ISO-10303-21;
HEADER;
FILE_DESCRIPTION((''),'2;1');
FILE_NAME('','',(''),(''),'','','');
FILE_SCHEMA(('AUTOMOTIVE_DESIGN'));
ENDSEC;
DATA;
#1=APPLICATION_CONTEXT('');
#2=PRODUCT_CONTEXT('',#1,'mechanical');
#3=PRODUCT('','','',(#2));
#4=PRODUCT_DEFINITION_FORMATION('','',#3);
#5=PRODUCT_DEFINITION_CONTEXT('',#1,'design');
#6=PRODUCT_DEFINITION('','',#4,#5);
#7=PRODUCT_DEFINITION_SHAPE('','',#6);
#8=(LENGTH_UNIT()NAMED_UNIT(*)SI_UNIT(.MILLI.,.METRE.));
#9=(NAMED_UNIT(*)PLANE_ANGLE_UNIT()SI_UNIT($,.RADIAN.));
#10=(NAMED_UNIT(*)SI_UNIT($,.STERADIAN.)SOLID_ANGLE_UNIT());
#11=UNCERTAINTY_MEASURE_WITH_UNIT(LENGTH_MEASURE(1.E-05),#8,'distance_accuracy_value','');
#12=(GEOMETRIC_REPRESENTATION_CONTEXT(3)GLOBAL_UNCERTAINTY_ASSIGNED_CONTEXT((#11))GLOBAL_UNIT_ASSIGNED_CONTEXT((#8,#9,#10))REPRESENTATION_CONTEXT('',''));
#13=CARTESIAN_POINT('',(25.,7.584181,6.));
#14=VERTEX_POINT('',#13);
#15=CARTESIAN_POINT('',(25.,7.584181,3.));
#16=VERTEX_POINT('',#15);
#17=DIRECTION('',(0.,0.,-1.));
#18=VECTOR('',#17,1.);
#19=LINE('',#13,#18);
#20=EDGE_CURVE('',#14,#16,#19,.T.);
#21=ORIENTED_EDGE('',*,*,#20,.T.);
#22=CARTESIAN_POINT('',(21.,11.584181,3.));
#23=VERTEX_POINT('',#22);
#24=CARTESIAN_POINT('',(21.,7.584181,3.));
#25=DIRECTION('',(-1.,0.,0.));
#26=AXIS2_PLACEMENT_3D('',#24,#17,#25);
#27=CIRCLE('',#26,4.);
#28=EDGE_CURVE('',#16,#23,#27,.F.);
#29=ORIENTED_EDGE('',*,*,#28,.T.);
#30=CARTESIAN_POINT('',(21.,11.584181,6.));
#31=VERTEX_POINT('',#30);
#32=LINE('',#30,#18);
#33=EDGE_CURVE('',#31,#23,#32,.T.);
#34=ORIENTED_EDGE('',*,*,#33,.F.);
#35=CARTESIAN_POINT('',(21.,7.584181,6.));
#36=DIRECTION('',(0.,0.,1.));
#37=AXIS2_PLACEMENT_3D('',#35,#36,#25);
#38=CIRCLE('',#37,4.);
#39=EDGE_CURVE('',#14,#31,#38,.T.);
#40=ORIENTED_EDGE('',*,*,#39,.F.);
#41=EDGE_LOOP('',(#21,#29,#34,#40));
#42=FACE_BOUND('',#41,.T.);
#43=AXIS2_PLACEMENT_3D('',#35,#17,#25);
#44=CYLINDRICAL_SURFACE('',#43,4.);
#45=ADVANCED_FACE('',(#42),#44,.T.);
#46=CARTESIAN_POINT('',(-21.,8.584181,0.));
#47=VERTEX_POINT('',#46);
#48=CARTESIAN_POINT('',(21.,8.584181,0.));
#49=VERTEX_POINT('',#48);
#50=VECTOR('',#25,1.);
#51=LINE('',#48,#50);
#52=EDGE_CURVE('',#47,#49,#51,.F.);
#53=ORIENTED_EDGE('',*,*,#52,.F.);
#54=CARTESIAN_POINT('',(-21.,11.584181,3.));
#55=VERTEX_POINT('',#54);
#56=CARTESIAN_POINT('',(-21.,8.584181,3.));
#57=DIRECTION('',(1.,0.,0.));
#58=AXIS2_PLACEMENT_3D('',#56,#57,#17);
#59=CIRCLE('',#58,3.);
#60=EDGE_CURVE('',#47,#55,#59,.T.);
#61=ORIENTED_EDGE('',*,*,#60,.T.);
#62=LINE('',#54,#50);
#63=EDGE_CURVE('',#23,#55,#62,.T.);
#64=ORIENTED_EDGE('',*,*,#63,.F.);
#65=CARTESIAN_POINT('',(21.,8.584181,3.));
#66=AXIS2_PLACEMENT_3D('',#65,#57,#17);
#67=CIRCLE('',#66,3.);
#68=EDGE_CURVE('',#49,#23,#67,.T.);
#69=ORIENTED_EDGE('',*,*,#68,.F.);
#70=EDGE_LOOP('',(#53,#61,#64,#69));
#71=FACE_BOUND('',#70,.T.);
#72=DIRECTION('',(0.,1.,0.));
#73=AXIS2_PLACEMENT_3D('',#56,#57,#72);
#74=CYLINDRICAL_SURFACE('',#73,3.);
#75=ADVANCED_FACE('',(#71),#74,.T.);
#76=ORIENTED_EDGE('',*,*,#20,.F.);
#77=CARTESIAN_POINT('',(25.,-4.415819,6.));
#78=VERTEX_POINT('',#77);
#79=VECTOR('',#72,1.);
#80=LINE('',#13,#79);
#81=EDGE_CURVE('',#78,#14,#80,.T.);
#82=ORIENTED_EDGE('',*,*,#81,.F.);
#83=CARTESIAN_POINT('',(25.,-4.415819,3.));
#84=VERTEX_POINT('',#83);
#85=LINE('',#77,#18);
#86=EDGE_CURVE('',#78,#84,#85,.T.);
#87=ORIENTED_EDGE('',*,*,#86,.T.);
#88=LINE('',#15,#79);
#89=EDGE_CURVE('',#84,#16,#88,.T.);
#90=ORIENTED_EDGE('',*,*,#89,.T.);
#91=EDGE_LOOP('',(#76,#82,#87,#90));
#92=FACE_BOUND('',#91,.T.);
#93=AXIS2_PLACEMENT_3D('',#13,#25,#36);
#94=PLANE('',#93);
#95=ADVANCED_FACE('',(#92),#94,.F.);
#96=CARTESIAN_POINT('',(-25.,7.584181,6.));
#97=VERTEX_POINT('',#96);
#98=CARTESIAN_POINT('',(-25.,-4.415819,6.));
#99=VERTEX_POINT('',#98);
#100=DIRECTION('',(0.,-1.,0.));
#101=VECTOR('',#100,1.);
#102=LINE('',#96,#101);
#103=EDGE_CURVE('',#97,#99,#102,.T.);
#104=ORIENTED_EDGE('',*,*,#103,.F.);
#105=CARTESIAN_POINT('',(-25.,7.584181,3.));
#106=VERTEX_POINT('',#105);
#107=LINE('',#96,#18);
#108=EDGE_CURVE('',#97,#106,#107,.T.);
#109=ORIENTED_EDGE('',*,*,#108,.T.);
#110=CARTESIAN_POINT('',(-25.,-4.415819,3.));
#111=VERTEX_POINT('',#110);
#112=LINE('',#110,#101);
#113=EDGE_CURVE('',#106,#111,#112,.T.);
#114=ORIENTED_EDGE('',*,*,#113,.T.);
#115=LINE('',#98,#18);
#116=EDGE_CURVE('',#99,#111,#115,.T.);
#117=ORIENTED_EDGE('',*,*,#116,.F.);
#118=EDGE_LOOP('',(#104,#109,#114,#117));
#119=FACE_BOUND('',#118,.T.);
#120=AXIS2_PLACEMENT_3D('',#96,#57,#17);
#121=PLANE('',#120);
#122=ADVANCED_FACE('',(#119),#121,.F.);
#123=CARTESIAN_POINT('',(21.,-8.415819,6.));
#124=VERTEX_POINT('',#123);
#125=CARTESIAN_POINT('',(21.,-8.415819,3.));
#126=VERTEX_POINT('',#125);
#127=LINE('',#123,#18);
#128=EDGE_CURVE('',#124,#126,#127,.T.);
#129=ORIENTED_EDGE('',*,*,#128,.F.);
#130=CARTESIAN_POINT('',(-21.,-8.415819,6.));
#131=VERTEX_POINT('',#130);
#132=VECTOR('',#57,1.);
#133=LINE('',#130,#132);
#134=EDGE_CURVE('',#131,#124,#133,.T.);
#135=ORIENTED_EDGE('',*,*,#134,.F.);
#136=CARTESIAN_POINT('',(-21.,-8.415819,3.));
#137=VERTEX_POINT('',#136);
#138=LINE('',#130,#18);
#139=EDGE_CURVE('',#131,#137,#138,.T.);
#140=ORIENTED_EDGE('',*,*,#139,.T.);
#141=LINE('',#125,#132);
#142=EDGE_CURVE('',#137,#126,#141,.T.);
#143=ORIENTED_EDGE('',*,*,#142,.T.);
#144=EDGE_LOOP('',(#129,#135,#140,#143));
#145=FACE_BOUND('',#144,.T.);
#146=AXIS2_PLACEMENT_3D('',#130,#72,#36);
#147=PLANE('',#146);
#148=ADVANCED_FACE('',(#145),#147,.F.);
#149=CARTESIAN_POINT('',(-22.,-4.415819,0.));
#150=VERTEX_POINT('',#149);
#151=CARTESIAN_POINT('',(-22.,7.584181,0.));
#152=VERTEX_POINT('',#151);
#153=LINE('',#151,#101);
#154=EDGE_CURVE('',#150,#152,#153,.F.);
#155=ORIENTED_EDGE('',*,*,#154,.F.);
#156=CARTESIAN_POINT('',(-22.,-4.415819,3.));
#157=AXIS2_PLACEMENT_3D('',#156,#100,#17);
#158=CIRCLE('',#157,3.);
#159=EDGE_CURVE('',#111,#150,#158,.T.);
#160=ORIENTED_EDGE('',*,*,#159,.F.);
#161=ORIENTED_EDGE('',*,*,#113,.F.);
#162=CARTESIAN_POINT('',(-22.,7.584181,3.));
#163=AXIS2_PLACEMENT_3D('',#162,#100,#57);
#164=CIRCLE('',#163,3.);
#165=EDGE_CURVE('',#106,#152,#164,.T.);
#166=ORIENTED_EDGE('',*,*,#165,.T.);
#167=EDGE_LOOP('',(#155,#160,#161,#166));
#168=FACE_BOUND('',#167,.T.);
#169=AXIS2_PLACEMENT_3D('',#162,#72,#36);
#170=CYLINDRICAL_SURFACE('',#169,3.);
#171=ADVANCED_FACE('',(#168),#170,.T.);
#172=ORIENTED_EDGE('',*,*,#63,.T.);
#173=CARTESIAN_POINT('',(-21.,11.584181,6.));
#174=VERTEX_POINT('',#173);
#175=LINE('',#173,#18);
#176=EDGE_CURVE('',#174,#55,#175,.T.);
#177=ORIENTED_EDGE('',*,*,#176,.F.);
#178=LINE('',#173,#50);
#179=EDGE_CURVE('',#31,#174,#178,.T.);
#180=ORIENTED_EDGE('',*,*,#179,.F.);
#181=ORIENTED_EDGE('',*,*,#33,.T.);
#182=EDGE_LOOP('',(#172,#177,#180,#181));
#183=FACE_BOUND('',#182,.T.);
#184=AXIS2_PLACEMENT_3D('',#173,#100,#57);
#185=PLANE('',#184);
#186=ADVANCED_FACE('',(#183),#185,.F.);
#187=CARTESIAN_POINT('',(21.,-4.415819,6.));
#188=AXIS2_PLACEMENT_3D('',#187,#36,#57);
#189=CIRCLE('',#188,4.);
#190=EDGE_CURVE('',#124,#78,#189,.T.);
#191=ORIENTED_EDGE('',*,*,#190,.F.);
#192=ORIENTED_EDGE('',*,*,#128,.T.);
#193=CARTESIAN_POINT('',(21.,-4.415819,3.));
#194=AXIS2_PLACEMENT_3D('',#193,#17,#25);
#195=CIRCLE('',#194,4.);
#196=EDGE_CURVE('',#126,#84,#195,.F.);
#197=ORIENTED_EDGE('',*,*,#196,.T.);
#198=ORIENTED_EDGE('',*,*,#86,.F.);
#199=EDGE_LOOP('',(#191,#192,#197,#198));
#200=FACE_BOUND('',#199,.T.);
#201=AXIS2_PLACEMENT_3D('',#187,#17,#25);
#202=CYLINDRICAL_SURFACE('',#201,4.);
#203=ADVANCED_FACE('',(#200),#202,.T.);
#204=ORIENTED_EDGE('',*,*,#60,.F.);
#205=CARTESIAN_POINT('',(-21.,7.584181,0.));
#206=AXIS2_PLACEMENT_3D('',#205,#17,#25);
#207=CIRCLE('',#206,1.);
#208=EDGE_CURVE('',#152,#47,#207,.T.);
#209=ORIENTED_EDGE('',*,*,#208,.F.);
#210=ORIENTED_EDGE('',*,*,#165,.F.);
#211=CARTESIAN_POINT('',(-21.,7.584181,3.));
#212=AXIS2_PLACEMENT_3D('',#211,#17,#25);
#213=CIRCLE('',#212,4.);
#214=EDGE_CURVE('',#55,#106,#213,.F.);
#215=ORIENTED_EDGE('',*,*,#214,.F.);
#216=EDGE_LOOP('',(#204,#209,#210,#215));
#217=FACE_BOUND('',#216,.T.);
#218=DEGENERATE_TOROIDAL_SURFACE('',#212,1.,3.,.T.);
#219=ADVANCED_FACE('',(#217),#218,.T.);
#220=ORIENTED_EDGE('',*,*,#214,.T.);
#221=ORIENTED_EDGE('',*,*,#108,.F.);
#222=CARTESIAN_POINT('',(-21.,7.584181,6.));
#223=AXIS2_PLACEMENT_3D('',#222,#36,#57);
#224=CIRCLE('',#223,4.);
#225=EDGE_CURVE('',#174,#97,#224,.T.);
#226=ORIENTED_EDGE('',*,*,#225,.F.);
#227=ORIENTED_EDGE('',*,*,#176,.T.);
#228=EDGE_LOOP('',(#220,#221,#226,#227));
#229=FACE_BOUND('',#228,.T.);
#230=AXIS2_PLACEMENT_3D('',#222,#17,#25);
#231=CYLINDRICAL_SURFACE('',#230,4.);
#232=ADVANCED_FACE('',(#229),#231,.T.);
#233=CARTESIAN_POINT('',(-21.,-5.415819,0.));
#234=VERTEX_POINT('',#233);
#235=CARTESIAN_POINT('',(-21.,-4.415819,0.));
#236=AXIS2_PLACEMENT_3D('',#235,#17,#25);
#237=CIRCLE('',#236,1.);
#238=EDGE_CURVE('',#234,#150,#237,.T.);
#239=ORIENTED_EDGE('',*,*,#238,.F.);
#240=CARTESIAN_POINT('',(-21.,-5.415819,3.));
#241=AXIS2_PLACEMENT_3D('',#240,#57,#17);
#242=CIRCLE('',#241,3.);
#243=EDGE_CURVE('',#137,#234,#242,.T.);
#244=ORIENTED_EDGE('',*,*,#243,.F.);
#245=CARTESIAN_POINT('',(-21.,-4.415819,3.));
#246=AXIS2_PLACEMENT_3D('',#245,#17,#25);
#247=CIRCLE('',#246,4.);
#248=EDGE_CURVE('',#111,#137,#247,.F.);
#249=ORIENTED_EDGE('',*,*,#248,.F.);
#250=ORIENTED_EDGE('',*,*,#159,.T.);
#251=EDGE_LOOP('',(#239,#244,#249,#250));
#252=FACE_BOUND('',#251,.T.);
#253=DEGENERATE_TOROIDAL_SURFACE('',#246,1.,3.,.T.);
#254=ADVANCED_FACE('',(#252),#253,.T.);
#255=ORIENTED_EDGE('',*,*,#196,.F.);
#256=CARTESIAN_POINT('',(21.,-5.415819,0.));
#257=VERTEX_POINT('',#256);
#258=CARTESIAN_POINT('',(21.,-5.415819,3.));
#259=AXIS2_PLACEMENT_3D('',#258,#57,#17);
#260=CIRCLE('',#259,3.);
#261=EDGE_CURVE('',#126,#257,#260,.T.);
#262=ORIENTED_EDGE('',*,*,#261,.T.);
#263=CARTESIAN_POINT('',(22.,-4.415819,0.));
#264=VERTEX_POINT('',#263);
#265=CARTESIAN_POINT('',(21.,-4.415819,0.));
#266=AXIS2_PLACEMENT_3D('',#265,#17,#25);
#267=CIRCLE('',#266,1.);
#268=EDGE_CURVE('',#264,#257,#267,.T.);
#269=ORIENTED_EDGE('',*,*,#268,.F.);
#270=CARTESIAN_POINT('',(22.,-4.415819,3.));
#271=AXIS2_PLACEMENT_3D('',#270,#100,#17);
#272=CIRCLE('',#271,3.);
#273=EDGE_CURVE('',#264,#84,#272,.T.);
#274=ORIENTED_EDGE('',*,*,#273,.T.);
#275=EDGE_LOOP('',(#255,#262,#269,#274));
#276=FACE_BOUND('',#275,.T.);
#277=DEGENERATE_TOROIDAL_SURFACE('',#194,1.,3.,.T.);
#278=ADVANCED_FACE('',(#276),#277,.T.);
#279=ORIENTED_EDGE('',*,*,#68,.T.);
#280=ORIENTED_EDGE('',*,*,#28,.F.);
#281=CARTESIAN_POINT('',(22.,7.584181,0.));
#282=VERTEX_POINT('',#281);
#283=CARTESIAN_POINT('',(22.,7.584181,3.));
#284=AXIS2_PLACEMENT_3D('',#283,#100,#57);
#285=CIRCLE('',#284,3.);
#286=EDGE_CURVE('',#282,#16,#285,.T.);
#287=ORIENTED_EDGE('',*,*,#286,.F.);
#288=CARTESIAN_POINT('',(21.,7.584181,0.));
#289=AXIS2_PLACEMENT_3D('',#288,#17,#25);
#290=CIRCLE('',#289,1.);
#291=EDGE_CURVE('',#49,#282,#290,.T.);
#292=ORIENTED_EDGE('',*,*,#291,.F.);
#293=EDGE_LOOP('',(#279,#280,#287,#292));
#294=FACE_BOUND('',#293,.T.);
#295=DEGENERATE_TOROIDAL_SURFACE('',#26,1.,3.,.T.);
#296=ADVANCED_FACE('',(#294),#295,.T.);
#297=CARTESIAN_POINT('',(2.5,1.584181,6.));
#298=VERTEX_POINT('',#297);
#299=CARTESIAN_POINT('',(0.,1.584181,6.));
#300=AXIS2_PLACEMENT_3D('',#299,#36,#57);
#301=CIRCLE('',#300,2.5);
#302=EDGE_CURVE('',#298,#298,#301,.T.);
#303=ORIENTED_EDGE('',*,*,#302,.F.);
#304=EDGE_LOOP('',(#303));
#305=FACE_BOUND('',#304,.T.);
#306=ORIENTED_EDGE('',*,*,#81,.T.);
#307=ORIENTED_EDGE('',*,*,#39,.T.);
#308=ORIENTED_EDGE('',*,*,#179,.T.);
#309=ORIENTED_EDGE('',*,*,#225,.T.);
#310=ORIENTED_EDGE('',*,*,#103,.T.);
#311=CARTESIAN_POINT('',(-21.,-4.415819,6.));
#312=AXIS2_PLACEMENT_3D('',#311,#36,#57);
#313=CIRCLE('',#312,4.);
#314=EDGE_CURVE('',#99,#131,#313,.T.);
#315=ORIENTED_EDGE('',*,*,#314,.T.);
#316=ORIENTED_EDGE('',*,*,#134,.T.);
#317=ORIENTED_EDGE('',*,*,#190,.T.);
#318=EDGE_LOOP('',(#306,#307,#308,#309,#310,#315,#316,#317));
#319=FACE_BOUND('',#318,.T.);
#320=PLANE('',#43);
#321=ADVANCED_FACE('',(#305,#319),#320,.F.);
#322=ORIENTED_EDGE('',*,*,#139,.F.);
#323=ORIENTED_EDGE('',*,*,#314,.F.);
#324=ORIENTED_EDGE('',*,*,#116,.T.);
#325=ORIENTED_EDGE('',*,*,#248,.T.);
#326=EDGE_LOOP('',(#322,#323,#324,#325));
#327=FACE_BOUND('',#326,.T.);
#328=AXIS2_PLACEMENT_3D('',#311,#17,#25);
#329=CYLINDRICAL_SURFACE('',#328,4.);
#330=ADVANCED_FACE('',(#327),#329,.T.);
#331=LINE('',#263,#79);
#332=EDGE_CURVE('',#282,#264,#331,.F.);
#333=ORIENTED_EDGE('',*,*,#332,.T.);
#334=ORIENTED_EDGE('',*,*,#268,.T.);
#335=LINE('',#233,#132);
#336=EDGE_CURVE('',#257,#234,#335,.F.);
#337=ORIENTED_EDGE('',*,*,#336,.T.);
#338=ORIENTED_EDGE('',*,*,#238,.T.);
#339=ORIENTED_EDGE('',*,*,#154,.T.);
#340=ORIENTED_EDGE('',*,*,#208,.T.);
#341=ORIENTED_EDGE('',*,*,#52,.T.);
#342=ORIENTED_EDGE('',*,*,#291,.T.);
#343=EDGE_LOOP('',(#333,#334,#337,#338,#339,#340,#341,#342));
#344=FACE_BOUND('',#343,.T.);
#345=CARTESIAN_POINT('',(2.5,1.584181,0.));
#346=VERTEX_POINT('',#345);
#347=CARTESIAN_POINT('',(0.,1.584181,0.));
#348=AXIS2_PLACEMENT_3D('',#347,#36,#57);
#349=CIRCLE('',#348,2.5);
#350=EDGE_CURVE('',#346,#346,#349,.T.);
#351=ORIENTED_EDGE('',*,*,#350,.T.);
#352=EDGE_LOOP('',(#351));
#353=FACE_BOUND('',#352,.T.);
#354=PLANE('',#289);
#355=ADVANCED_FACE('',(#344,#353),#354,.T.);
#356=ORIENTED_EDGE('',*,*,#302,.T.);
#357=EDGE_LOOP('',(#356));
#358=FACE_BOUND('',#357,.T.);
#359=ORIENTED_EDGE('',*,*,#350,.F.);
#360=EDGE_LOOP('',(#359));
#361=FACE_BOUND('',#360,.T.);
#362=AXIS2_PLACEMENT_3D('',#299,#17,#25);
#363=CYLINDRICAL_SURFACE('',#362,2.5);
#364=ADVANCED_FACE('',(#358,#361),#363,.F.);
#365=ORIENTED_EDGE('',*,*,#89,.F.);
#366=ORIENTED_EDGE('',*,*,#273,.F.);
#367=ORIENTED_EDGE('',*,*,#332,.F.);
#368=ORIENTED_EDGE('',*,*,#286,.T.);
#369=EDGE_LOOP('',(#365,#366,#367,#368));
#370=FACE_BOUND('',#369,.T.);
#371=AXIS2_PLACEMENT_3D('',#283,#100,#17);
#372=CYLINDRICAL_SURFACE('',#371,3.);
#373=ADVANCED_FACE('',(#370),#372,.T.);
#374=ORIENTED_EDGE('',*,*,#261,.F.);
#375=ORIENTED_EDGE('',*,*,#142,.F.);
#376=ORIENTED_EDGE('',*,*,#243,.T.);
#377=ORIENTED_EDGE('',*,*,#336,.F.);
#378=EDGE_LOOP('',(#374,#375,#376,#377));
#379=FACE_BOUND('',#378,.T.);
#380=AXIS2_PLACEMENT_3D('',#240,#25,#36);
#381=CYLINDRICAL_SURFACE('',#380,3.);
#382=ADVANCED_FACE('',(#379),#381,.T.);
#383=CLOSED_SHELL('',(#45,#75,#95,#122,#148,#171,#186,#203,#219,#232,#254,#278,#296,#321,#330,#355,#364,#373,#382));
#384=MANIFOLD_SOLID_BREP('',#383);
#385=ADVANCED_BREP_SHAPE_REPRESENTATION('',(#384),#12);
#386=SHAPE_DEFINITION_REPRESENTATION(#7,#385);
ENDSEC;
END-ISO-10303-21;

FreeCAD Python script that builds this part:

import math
import FreeCAD as App
import Part
import Sketcher

V = App.Vector
Q = App.Units.Quantity


def edges_at(feature, points):
    """Names of the edges that pass closest to the given points."""
    edges = feature.Shape.Edges
    near = lambda p: min(range(len(edges)), key=lambda i: edges[i].distToShape(Part.Vertex(*p))[0])
    return sorted({f"Edge{near(p) + 1}" for p in points})

doc = App.newDocument("Part")
params = doc.addObject("Spreadsheet::Sheet", "Params")
for row, (alias, value) in enumerate([
    ("sketch1_diameter", "5 mm"),
    ("sketch1_radius", "4 mm"),
    ("sketch1_width", "42 mm"),
    ("sketch1_height", "12 mm"),
    ("pad1_length", "6 mm"),
    ("fillet_radius", "3 mm"),
], start=1):
    params.set(f"A{row}", alias)
    params.set(f"B{row}", "=" + value)
    params.setAlias(f"B{row}", alias)

body = doc.addObject("PartDesign::Body", "Body")

sketch1 = doc.addObject("Sketcher::SketchObject", "Sketch")
body.addObject(sketch1)
sketch1.AttachmentSupport = (doc.XY_Plane, [""])
sketch1.MapMode = "FlatFace"
sketch1.addGeometry([
    Part.LineSegment(V(21, 11.6, 0), V(-21, 11.6, 0)),
    Part.ArcOfCircle(Part.Circle(V(-21, 7.6, 0), V(0, 0, 1), 4), math.radians(90), math.radians(180)),
    Part.LineSegment(V(-25, 7.6, 0), V(-25, -4.4, 0)),
    Part.ArcOfCircle(Part.Circle(V(-21, -4.4, 0), V(0, 0, 1), 4), math.radians(180), math.radians(270)),
    Part.LineSegment(V(-21, -8.4, 0), V(21, -8.4, 0)),
    Part.ArcOfCircle(Part.Circle(V(21, -4.4, 0), V(0, 0, 1), 4), math.radians(-90), math.radians(0)),
    Part.LineSegment(V(25, -4.4, 0), V(25, 7.6, 0)),
    Part.ArcOfCircle(Part.Circle(V(21, 7.6, 0), V(0, 0, 1), 4), math.radians(0), math.radians(90)),
    Part.Circle(V(0, 1.6, 0), V(0, 0, 1), 2.5),
], False)
sketch1.addConstraint([
    Sketcher.Constraint("Tangent", 0, 2, 1, 1),
    Sketcher.Constraint("Tangent", 1, 2, 2, 1),
    Sketcher.Constraint("Tangent", 2, 2, 3, 1),
    Sketcher.Constraint("Tangent", 3, 2, 4, 1),
    Sketcher.Constraint("Tangent", 4, 2, 5, 1),
    Sketcher.Constraint("Tangent", 5, 2, 6, 1),
    Sketcher.Constraint("Tangent", 6, 2, 7, 1),
    Sketcher.Constraint("Tangent", 7, 2, 0, 1),
    Sketcher.Constraint("Horizontal", 0),
    Sketcher.Constraint("Vertical", 2),
    Sketcher.Constraint("Horizontal", 4),
    Sketcher.Constraint("Vertical", 6),
    Sketcher.Constraint("Equal", 1, 3),
    Sketcher.Constraint("Equal", 3, 5),
    Sketcher.Constraint("Equal", 5, 7),
    Sketcher.Constraint("PointOnObject", 8, 3, -2),
    Sketcher.Constraint("Diameter", 8, Q("5 mm")),
    Sketcher.Constraint("Radius", 1, Q("4 mm")),
    Sketcher.Constraint("DistanceX", 0, 2, 0, 1, Q("42 mm")),
    Sketcher.Constraint("DistanceY", 2, 2, 2, 1, Q("12 mm")),
    Sketcher.Constraint("DistanceX", 1, 3, -1, 1, Q("21 mm")),
    Sketcher.Constraint("DistanceY", 8, 3, 1, 3, Q("6 mm")),
    Sketcher.Constraint("DistanceY", -1, 1, 1, 3, Q("7.584181 mm")),
])
sketch1.setExpression("Constraints[16]", "Params.sketch1_diameter")
sketch1.setExpression("Constraints[17]", "Params.sketch1_radius")
sketch1.setExpression("Constraints[18]", "Params.sketch1_width")
sketch1.setExpression("Constraints[19]", "Params.sketch1_height")
pad1 = doc.addObject("PartDesign::Pad", "Pad")
body.addObject(pad1)
pad1.Profile = sketch1
pad1.setExpression("Length", "Params.pad1_length")
doc.recompute()

fillet = doc.addObject("PartDesign::Fillet", "Fillet")
body.addObject(fillet)
fillet.Base = (pad1, edges_at(pad1, [
    (-25, 1.584, 0),
    (-23.828, 10.413, 0),
    (0, 11.584, 0),
    (23.828, 10.413, 0),
    (25, 1.584, 0),
    (23.828, -7.244, 0),
    (0, -8.416, 0),
    (-23.828, -7.244, 0),
]))
fillet.setExpression("Radius", "Params.fillet_radius")

doc.recompute()
